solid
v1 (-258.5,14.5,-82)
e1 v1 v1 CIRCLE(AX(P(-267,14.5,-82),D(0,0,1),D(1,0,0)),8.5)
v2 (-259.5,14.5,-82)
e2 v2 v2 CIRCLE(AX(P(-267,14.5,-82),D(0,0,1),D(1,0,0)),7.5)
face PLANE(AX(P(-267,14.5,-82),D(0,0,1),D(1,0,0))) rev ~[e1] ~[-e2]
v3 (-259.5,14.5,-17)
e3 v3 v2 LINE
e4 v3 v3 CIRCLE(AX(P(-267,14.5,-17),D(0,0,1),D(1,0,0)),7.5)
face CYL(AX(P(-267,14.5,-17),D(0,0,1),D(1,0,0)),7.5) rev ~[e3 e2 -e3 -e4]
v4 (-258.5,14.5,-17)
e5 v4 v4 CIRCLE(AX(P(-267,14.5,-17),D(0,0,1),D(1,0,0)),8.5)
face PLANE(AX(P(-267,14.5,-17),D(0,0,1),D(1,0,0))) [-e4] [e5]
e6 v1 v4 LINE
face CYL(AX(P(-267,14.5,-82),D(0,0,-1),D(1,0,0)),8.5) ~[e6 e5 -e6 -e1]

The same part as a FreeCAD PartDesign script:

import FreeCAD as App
import Part
import Sketcher
Q = App.Units.Quantity

doc = App.newDocument("Part")
body = doc.addObject("PartDesign::Body", "Body")

sketch1 = body.newObject("Sketcher::SketchObject", "Sketch")
sketch1.AttachmentSupport = (doc.getObject("XY_Plane"), [""])
sketch1.MapMode = "FlatFace"
sketch1.addGeometry(Part.Circle(App.Vector(0, 0, 0), App.Vector(0, 0, 1), 8), False)
sketch1.addConstraint([
    Sketcher.Constraint("Coincident", 0, 3, -1, 1),
    Sketcher.Constraint("Diameter", 0, Q("17 mm")),
])
pad1 = body.newObject("PartDesign::Pad", "Pad")
pad1.Profile = sketch1
pad1.Length = 65

sketch2 = body.newObject("Sketcher::SketchObject", "Sketch001")
sketch2.AttachmentSupport = (doc.getObject("XY_Plane"), [""])
sketch2.MapMode = "FlatFace"
sketch2.AttachmentOffset = App.Placement(App.Vector(0, 0, 65), App.Rotation())
sketch2.addGeometry(Part.Circle(App.Vector(0, 0, 0), App.Vector(0, 0, 1), 8), False)
sketch2.addConstraint([
    Sketcher.Constraint("Coincident", 0, 3, -1, 1),
    Sketcher.Constraint("Diameter", 0, Q("15 mm")),
])
pocket1 = body.newObject("PartDesign::Pocket", "Pocket")
pocket1.Profile = sketch2
pocket1.Length = 85

sketch3 = body.newObject("Sketcher::SketchObject", "Sketch002")
sketch3.AttachmentSupport = (doc.getObject("XY_Plane"), [""])
sketch3.MapMode = "FlatFace"
sketch3.AttachmentOffset = App.Placement(App.Vector(0, 0, 65), App.Rotation())
sketch3.addGeometry(Part.Circle(App.Vector(0, 0, 0), App.Vector(0, 0, 1), 7), False)
sketch3.addConstraint([
    Sketcher.Constraint("Coincident", 0, 3, -1, 1),
    Sketcher.Constraint("Diameter", 0, Q("14 mm")),
])
pocket2 = body.newObject("PartDesign::Pocket", "Pocket001")
pocket2.Profile = sketch3
pocket2.Length = 70
body2 = doc.addObject("PartDesign::Body", "Body001")
doc.recompute()

body.Placement = App.Placement(App.Vector(-267, 14.5, -82), App.Rotation(App.Vector(0, 0, 1), 0))
boolean = body2.newObject("PartDesign::Boolean", "Boolean")
boolean.Type = "Fuse"
boolean.addObjects([body])

doc.recompute()
